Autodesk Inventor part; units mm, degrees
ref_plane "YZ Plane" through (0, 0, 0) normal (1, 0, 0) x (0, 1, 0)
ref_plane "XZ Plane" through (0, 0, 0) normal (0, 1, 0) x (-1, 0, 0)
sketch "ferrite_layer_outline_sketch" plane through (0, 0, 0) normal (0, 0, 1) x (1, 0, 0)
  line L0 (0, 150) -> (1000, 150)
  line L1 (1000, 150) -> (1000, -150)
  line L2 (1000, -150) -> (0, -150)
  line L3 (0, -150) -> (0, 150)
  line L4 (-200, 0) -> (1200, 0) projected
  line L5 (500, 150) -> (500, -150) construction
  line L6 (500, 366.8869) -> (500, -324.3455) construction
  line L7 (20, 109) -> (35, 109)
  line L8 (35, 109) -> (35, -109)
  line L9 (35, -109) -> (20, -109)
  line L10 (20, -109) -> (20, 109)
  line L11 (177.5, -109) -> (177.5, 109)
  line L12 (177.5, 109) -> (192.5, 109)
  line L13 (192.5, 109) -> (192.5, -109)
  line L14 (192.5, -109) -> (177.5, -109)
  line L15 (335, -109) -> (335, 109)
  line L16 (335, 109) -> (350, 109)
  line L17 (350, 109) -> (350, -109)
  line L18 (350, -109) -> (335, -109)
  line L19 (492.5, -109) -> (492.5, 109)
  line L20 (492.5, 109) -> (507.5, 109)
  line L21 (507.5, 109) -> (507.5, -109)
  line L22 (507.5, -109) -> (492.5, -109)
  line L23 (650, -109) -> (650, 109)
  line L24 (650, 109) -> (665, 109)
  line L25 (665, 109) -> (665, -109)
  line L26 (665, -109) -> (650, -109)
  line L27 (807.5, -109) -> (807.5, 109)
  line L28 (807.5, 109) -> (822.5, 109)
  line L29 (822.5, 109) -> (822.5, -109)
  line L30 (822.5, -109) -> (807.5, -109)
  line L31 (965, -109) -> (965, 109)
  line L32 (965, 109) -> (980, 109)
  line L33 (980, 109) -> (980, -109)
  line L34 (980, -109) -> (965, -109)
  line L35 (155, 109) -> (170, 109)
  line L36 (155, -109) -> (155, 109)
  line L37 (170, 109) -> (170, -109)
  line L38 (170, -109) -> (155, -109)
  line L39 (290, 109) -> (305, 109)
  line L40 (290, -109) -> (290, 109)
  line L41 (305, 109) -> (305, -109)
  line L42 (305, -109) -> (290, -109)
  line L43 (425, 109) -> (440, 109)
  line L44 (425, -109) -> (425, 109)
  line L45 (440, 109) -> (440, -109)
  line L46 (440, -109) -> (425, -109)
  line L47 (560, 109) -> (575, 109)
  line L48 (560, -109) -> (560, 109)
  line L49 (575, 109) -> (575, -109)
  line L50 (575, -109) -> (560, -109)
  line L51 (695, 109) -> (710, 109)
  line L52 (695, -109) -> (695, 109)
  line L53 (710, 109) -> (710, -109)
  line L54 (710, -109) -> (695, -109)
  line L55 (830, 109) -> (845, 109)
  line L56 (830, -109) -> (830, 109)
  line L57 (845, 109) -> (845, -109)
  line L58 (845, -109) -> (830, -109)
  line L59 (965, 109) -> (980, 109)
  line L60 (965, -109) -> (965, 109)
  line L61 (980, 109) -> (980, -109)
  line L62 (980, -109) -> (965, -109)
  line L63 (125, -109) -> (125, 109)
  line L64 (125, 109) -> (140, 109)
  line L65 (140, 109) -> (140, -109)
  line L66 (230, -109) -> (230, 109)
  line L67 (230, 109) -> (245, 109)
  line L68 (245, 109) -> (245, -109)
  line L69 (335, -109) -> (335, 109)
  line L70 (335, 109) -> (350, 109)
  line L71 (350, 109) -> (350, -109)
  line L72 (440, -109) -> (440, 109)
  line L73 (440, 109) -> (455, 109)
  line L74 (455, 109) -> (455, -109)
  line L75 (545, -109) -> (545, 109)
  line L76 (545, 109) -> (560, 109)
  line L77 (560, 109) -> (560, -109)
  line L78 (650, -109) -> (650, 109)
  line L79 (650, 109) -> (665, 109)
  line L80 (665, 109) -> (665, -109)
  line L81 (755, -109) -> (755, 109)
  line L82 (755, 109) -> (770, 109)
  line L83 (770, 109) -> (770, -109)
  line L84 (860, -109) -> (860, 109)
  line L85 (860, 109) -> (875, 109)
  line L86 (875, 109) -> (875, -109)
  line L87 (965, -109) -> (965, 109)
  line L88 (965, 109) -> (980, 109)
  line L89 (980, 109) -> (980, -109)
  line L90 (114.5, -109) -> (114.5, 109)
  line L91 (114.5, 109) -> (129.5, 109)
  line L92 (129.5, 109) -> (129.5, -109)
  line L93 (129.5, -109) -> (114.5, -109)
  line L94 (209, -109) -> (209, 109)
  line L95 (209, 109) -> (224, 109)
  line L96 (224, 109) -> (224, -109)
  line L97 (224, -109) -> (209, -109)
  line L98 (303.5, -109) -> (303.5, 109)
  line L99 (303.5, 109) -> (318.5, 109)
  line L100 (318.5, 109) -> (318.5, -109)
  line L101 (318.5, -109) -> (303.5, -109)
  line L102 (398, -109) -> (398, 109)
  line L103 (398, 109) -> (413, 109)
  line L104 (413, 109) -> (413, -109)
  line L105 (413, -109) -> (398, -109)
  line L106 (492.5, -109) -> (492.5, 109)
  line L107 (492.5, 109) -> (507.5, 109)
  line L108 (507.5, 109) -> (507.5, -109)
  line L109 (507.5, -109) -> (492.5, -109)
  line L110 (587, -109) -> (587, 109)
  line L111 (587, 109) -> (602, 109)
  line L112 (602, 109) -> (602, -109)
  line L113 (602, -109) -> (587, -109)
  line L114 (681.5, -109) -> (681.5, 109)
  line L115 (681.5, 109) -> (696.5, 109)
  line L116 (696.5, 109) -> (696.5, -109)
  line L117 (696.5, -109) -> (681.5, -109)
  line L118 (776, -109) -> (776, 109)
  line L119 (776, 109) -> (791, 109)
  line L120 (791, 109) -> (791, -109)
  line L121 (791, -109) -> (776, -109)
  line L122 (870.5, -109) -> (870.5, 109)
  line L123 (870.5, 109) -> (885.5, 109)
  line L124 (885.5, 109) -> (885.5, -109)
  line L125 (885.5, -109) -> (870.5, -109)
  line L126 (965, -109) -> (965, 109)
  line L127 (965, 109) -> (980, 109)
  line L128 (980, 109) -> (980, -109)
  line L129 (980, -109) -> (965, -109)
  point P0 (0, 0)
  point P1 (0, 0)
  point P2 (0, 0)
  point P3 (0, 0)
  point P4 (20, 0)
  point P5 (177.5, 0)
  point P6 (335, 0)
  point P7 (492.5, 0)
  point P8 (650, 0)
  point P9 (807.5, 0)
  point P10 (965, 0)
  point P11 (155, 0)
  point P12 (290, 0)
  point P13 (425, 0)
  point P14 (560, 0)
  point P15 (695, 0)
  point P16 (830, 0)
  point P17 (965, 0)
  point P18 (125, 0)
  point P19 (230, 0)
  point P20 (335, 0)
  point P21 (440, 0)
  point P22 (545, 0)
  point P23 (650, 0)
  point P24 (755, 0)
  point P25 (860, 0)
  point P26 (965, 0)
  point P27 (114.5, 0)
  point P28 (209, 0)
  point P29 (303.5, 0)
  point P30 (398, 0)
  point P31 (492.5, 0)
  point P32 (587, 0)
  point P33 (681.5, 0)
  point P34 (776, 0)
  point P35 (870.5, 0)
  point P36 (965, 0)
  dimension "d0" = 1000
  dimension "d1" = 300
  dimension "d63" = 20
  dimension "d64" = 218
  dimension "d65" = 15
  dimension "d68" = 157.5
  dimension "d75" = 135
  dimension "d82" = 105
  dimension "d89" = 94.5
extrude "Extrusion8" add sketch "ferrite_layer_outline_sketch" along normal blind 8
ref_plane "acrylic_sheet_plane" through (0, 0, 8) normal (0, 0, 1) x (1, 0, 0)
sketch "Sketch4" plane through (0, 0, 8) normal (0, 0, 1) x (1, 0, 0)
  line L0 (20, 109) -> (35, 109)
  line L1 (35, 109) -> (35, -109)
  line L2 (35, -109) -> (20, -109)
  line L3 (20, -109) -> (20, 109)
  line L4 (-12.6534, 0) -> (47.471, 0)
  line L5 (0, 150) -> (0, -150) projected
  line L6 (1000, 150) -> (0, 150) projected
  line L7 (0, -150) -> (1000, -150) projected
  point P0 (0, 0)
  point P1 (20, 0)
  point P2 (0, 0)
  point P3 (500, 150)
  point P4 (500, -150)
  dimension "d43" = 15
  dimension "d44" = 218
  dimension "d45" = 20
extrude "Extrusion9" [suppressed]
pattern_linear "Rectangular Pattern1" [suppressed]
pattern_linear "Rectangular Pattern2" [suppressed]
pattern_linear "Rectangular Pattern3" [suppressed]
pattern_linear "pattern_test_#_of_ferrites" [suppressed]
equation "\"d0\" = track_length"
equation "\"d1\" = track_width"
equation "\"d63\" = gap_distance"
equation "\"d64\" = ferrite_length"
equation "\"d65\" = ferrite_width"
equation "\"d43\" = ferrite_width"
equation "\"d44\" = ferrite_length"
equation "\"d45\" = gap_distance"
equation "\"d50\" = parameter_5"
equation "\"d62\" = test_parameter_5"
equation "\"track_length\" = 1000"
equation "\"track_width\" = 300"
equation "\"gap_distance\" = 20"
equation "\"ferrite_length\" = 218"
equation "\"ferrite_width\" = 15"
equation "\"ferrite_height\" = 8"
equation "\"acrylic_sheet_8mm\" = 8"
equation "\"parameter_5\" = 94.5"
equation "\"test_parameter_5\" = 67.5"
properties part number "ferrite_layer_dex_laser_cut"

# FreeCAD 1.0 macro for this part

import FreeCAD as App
import Part
import Sketcher
Q = App.Units.Quantity


def add_polygon(sketch, points):
    """Adds a closed chain of lines whose ends are joined by coincident constraints."""
    first, n = sketch.GeometryCount, len(points)
    for a, b in zip(points, points[1:] + points[:1]):
        sketch.addGeometry(Part.LineSegment(App.Vector(*a, 0), App.Vector(*b, 0)), False)
    for i in range(n):
        sketch.addConstraint(Sketcher.Constraint("Coincident", first + i, 2, first + (i + 1) % n, 1))

doc = App.newDocument("Part")
body = doc.addObject("PartDesign::Body", "Body")

sketch1 = body.newObject("Sketcher::SketchObject", "Sketch")
sketch1.AttachmentSupport = (doc.getObject("XY_Plane"), [""])
sketch1.MapMode = "FlatFace"
add_polygon(sketch1, [(1000, 150), (0, 150), (0, -150), (1000, -150)])
sketch1.addConstraint([
    Sketcher.Constraint("Horizontal", 0),
    Sketcher.Constraint("Vertical", 1),
    Sketcher.Constraint("Horizontal", 2),
    Sketcher.Constraint("Vertical", 3),
    Sketcher.Constraint("Symmetric", 0, 2, 1, 2, -1, 1),
    Sketcher.Constraint("DistanceX", 0, 2, 0, 1, Q("1000 mm")),
    Sketcher.Constraint("DistanceY", 1, 2, 1, 1, Q("300 mm")),
])
pad1 = body.newObject("PartDesign::Pad", "Pad")
pad1.Profile = sketch1
pad1.Length = 8

doc.recompute()
